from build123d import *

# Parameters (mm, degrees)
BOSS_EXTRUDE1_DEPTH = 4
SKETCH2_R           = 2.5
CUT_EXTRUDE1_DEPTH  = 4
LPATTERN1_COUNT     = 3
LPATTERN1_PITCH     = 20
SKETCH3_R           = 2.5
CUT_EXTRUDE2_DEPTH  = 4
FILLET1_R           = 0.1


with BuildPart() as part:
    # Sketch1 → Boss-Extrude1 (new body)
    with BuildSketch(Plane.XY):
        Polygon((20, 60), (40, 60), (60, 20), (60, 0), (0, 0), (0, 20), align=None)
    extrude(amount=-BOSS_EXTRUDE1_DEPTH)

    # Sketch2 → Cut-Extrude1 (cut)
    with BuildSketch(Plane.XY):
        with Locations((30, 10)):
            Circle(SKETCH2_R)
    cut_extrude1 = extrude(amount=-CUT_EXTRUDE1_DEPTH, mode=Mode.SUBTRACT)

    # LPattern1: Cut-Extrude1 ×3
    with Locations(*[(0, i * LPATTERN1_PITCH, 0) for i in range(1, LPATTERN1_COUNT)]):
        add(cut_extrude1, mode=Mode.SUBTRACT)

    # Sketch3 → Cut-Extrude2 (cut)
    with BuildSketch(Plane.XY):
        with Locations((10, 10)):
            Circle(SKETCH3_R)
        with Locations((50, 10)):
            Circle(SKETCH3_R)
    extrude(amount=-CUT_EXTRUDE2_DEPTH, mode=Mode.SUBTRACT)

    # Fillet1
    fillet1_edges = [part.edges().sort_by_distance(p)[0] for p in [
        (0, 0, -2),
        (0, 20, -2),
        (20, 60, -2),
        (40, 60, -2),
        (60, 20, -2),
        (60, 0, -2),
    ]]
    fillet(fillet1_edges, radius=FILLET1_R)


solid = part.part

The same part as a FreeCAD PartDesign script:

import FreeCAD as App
import Part
import Sketcher
from FreeCAD import Vector
Q = App.Units.Quantity


def edges_at(feature, points):
    """Names of the edges that pass closest to the given points."""
    edges = feature.Shape.Edges
    near = lambda p: min(range(len(edges)), key=lambda i: edges[i].distToShape(Part.Vertex(*p))[0])
    return sorted({f"Edge{near(p) + 1}" for p in points})

doc = App.newDocument("Part")
body = doc.addObject("PartDesign::Body", "Body")

# Sketch on XY plane
sketch1 = body.newObject("Sketcher::SketchObject", "Sketch")
sketch1.AttachmentSupport = (doc.getObject("XY_Plane"), [""])
sketch1.MapMode = "FlatFace"
sketch1.addGeometry([
    Part.LineSegment(Vector(40, 60, 0), Vector(20, 60, 0)),  # 0
    Part.LineSegment(Vector(20, 60, 0), Vector(0, 20, 0)),  # 1
    Part.LineSegment(Vector(0, 20, 0), Vector(0, 0, 0)),  # 2
    Part.LineSegment(Vector(0, 0, 0), Vector(60, 0, 0)),  # 3
    Part.LineSegment(Vector(60, 0, 0), Vector(60, 20, 0)),  # 4
    Part.LineSegment(Vector(60, 20, 0), Vector(40, 60, 0)),  # 5
], False)
sketch1.addConstraint([
    Sketcher.Constraint("Coincident", 0, 2, 1, 1),
    Sketcher.Constraint("Coincident", 1, 2, 2, 1),
    Sketcher.Constraint("Coincident", 2, 2, 3, 1),
    Sketcher.Constraint("Coincident", 3, 2, 4, 1),
    Sketcher.Constraint("Coincident", 4, 2, 5, 1),
    Sketcher.Constraint("Coincident", 5, 2, 0, 1),
    Sketcher.Constraint("Horizontal", 0),
    Sketcher.Constraint("Vertical", 2),
    Sketcher.Constraint("Horizontal", 3),
    Sketcher.Constraint("Vertical", 4),
    Sketcher.Constraint("Coincident", 2, 2, -1, 1),
    Sketcher.Constraint("Horizontal", 1, 2, 4, 2),
    Sketcher.Constraint("Equal", 0, 2),
    Sketcher.Constraint("Equal", 1, 5),
    Sketcher.Constraint("DistanceX", 0, 2, 0, 1, Q("20 mm")),
    Sketcher.Constraint("DistanceX", 3, 1, 3, 2, Q("60 mm")),
    Sketcher.Constraint("DistanceY", -1, 1, 0, 2, Q("60 mm")),
])
pad1 = body.newObject("PartDesign::Pad", "Pad")
pad1.Profile = sketch1
pad1.Length = 4
pad1.Reversed = True

# Sketch on XY plane
sketch2 = body.newObject("Sketcher::SketchObject", "Sketch001")
sketch2.AttachmentSupport = (doc.getObject("XY_Plane"), [""])
sketch2.MapMode = "FlatFace"
sketch2.addGeometry(Part.Circle(Vector(30, 10, 0), Vector(0, 0, 1), 2.5), False)
sketch2.addConstraint([
    Sketcher.Constraint("Diameter", 0, Q("5 mm")),
    Sketcher.Constraint("DistanceX", -1, 1, 0, 3, Q("30 mm")),
    Sketcher.Constraint("DistanceY", -1, 1, 0, 3, Q("10 mm")),
])
pocket1 = body.newObject("PartDesign::Pocket", "Pocket")
pocket1.Profile = sketch2
pocket1.Length = 4
doc.recompute()

linearpattern = body.newObject("PartDesign::LinearPattern", "LinearPattern")
linearpattern.Originals = [pocket1]
linearpattern.Direction = (doc.getObject("Y_Axis"), [""])
linearpattern.Mode = "offset"
linearpattern.Offset = 20
linearpattern.Occurrences = 3
body.Tip = linearpattern

# Sketch on XY plane
sketch3 = body.newObject("Sketcher::SketchObject", "Sketch002")
sketch3.AttachmentSupport = (doc.getObject("XY_Plane"), [""])
sketch3.MapMode = "FlatFace"
sketch3.addGeometry([
    Part.Circle(Vector(10, 10, 0), Vector(0, 0, 1), 2.5),
    Part.Circle(Vector(50, 10, 0), Vector(0, 0, 1), 2.5),
], False)
sketch3.addConstraint([
    Sketcher.Constraint("Equal", 0, 1),
    Sketcher.Constraint("Horizontal", 0, 3, 1, 3),
    Sketcher.Constraint("Diameter", 0, Q("5 mm")),
    Sketcher.Constraint("DistanceX", -1, 1, 0, 3, Q("10 mm")),
    Sketcher.Constraint("DistanceY", -1, 1, 0, 3, Q("10 mm")),
    Sketcher.Constraint("DistanceX", -1, 1, 1, 3, Q("50 mm")),
])
pocket2 = body.newObject("PartDesign::Pocket", "Pocket001")
pocket2.Profile = sketch3
pocket2.Length = 4
doc.recompute()

fillet = body.newObject("PartDesign::Fillet", "Fillet")
fillet.Base = (pocket2, edges_at(pocket2, [
    (0, 0, -2),
    (0, 20, -2),
    (20, 60, -2),
    (40, 60, -2),
    (60, 20, -2),
    (60, 0, -2),
]))
fillet.Radius = 0.1

doc.recompute()
